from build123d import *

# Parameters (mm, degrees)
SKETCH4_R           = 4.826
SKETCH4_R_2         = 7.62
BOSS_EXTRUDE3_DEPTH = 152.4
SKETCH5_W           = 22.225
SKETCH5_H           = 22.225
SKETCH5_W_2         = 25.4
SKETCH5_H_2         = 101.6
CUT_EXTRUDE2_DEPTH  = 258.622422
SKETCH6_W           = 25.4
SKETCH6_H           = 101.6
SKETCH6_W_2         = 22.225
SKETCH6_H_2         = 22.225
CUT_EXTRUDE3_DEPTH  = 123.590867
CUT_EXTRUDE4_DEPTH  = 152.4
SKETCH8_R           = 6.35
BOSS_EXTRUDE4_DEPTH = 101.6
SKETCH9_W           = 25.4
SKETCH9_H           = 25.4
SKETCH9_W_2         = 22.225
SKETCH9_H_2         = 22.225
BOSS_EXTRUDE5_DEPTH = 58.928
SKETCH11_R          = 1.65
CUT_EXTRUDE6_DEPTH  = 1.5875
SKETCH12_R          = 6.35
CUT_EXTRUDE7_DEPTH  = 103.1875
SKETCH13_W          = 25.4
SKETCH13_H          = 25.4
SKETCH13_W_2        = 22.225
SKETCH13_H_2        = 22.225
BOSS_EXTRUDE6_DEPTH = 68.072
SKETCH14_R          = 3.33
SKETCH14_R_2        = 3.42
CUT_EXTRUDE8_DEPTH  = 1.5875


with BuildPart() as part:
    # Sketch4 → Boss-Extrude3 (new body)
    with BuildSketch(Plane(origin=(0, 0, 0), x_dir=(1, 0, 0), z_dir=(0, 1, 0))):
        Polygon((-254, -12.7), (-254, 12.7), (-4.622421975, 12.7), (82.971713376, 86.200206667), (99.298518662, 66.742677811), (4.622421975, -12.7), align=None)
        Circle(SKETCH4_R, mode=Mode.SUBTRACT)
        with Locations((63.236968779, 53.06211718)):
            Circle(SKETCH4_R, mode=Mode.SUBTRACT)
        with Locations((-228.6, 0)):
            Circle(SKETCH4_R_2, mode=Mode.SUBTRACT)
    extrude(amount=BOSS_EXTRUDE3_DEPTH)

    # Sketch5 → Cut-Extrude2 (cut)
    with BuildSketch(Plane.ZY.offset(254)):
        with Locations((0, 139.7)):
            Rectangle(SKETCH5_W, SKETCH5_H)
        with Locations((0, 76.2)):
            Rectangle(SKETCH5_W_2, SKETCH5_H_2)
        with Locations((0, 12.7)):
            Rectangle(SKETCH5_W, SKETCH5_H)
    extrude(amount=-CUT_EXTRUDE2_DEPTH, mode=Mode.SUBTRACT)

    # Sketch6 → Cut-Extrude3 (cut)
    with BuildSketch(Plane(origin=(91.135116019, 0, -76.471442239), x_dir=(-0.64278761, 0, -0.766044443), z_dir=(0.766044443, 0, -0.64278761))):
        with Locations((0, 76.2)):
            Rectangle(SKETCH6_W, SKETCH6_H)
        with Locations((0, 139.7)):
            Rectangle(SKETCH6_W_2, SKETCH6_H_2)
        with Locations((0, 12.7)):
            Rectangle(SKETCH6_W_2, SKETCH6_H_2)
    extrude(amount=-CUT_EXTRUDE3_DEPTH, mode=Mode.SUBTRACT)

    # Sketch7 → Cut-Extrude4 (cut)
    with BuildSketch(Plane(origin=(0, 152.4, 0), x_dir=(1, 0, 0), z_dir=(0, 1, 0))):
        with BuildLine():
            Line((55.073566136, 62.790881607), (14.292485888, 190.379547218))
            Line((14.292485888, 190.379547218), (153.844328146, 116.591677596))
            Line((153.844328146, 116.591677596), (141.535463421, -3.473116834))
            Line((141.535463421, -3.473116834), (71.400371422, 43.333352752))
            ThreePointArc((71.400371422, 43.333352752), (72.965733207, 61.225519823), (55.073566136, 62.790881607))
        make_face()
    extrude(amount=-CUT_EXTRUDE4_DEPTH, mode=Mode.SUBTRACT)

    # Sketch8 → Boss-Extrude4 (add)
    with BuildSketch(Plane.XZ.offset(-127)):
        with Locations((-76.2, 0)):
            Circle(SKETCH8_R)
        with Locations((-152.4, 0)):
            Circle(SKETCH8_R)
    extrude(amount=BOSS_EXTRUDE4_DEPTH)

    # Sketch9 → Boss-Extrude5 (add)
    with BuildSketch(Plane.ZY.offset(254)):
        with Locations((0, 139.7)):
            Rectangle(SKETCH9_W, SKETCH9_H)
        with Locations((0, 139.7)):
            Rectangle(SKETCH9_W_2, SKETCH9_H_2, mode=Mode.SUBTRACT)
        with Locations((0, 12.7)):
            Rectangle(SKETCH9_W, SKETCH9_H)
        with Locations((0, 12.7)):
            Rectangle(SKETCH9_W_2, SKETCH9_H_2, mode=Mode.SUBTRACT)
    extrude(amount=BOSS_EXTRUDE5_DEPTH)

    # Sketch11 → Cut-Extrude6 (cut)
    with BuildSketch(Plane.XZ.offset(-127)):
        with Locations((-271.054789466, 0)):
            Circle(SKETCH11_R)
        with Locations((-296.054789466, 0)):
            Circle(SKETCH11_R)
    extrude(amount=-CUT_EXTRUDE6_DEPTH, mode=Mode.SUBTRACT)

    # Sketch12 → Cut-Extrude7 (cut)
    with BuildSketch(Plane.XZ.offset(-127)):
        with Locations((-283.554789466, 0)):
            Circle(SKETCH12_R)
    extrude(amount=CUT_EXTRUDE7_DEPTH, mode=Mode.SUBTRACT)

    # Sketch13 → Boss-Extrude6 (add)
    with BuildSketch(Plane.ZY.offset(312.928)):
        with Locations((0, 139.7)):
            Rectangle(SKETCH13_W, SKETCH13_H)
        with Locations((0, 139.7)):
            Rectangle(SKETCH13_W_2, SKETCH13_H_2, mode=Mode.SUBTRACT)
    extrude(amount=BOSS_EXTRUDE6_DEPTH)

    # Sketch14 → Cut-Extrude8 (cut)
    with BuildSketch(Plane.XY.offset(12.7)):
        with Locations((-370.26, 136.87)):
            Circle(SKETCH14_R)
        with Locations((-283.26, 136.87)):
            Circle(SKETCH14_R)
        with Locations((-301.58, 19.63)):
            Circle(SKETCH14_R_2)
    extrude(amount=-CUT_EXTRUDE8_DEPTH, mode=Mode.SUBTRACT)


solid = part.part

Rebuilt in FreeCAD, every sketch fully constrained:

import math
import FreeCAD as App
import Part
import Sketcher
Q = App.Units.Quantity

doc = App.newDocument("Part")
body = doc.addObject("PartDesign::Body", "Body")
body.AllowCompound = True

# Sketch on XZ plane
sketch1 = body.newObject("Sketcher::SketchObject", "Sketch")
sketch1.AttachmentSupport = (doc.getObject("XZ_Plane"), [""])
sketch1.MapMode = "FlatFace"
sketch1.addGeometry([
    Part.LineSegment(App.Vector(-254, -12.7, 0), App.Vector(-254, 12.7, 0)),  # 0
    Part.LineSegment(App.Vector(-254, 12.7, 0), App.Vector(4.6, 12.7, 0)),  # 1
    Part.LineSegment(App.Vector(4.6, 12.7, 0), App.Vector(99.3, -66.7, 0)),  # 2
    Part.LineSegment(App.Vector(99.3, -66.7, 0), App.Vector(83, -86.2, 0)),  # 3
    Part.LineSegment(App.Vector(83, -86.2, 0), App.Vector(-4.6, -12.7, 0)),  # 4
    Part.LineSegment(App.Vector(-4.6, -12.7, 0), App.Vector(-254, -12.7, 0)),  # 5
    Part.Circle(App.Vector(0, 0, 0), App.Vector(0, 0, 1), 4.8),  # 6
    Part.Circle(App.Vector(-228.6, 0, 0), App.Vector(0, 0, 1), 7.6),  # 7
    Part.Circle(App.Vector(63.2, -53.1, 0), App.Vector(0, 0, 1), 4.8),  # 8
], False)
sketch1.addConstraint([
    Sketcher.Constraint("Coincident", 0, 2, 1, 1),
    Sketcher.Constraint("Coincident", 1, 2, 2, 1),
    Sketcher.Constraint("Coincident", 2, 2, 3, 1),
    Sketcher.Constraint("Coincident", 3, 2, 4, 1),
    Sketcher.Constraint("Coincident", 4, 2, 5, 1),
    Sketcher.Constraint("Coincident", 5, 2, 0, 1),
    Sketcher.Constraint("Vertical", 0),
    Sketcher.Constraint("Horizontal", 1),
    Sketcher.Constraint("Horizontal", 5),
    Sketcher.Constraint("Coincident", 6, 3, -1, 1),
    Sketcher.Constraint("Equal", 6, 8),
    Sketcher.Constraint("Symmetric", 1, 2, 4, 2, -1, 1),
    Sketcher.Constraint("PointOnObject", 7, 3, -1),
    Sketcher.Constraint("Perpendicular", 2, 3),
    Sketcher.Constraint("Perpendicular", 3, 4),
    Sketcher.Constraint("Diameter", 7, Q("0.6 in")),
    Sketcher.Constraint("Diameter", 6, Q("0.38 in")),
    Sketcher.Constraint("DistanceY", 0, 1, 0, 2, Q("1 in")),
    Sketcher.Constraint("Distance", 3, Q("1 in")),
    Sketcher.Constraint("DistanceX", 7, 3, -1, 1, Q("9 in")),
    Sketcher.Constraint("DistanceX", 0, 2, -1, 1, Q("10 in")),
    Sketcher.Constraint("Angle", 2, Q("-40 deg")),
    Sketcher.Constraint("DistanceX", -1, 1, 8, 3, Q("63.236969 mm")),
    Sketcher.Constraint("DistanceX", -1, 1, 2, 2, Q("99.298519 mm")),
    Sketcher.Constraint("DistanceY", 2, 2, 8, 3, Q("13.680561 mm")),
])
pad1 = body.newObject("PartDesign::Pad", "Pad")
pad1.Profile = sketch1
pad1.Length = Q("6 in")
pad1.Reversed = True

# Sketch on YZ plane
sketch2 = body.newObject("Sketcher::SketchObject", "Sketch001")
sketch2.AttachmentSupport = (doc.getObject("YZ_Plane"), [""])
sketch2.MapMode = "FlatFace"
sketch2.AttachmentOffset = App.Placement(App.Vector(0, 0, -10 * 25.4), App.Rotation())
sketch2.addGeometry([
    Part.LineSegment(App.Vector(151, -11, 0), App.Vector(129, -11, 0)),  # 0
    Part.LineSegment(App.Vector(129, -11, 0), App.Vector(129, 11, 0)),  # 1
    Part.LineSegment(App.Vector(129, 11, 0), App.Vector(151, 11, 0)),  # 2
    Part.LineSegment(App.Vector(151, 11, 0), App.Vector(151, -11, 0)),  # 3
    Part.LineSegment(App.Vector(127, -13, 0), App.Vector(25, -13, 0)),  # 4
    Part.LineSegment(App.Vector(25, -13, 0), App.Vector(25, 13, 0)),  # 5
    Part.LineSegment(App.Vector(25, 13, 0), App.Vector(127, 13, 0)),  # 6
    Part.LineSegment(App.Vector(127, 13, 0), App.Vector(127, -13, 0)),  # 7
    Part.LineSegment(App.Vector(24, -11, 0), App.Vector(2, -11, 0)),  # 8
    Part.LineSegment(App.Vector(2, -11, 0), App.Vector(2, 11, 0)),  # 9
    Part.LineSegment(App.Vector(2, 11, 0), App.Vector(24, 11, 0)),  # 10
    Part.LineSegment(App.Vector(24, 11, 0), App.Vector(24, -11, 0)),  # 11
], False)
sketch2.addConstraint([
    Sketcher.Constraint("Coincident", 0, 2, 1, 1),
    Sketcher.Constraint("Coincident", 1, 2, 2, 1),
    Sketcher.Constraint("Coincident", 2, 2, 3, 1),
    Sketcher.Constraint("Coincident", 3, 2, 0, 1),
    Sketcher.Constraint("Coincident", 4, 2, 5, 1),
    Sketcher.Constraint("Coincident", 5, 2, 6, 1),
    Sketcher.Constraint("Coincident", 6, 2, 7, 1),
    Sketcher.Constraint("Coincident", 7, 2, 4, 1),
    Sketcher.Constraint("Coincident", 8, 2, 9, 1),
    Sketcher.Constraint("Coincident", 9, 2, 10, 1),
    Sketcher.Constraint("Coincident", 10, 2, 11, 1),
    Sketcher.Constraint("Coincident", 11, 2, 8, 1),
    Sketcher.Constraint("Horizontal", 0),
    Sketcher.Constraint("Vertical", 1),
    Sketcher.Constraint("Horizontal", 2),
    Sketcher.Constraint("Vertical", 3),
    Sketcher.Constraint("Horizontal", 4),
    Sketcher.Constraint("Vertical", 5),
    Sketcher.Constraint("Horizontal", 6),
    Sketcher.Constraint("Vertical", 7),
    Sketcher.Constraint("Horizontal", 8),
    Sketcher.Constraint("Vertical", 9),
    Sketcher.Constraint("Horizontal", 10),
    Sketcher.Constraint("Vertical", 11),
    Sketcher.Constraint("Horizontal", 3, 2, 8, 2),
    Sketcher.Constraint("Horizontal", 2, 2, 9, 2),
    Sketcher.Constraint("Equal", 2, 8),
    Sketcher.Constraint("Equal", 10, 1),
    Sketcher.Constraint("DistanceX", 4, 2, 4, 1, Q("4 in")),
    Sketcher.Constraint("DistanceY", 5, 1, 5, 2, Q("1 in")),
    Sketcher.Constraint("DistanceX", -1, 1, 4, 2, Q("1 in")),
    Sketcher.Constraint("DistanceX", 8, 2, 0, 2, Q("5 in")),
    Sketcher.Constraint("DistanceY", 4, 2, -1, 1, Q("0.5 in")),
    Sketcher.Constraint("DistanceX", 0, 2, 0, 1, Q("0.875 in")),
    Sketcher.Constraint("DistanceX", -1, 1, 0, 2, Q("5.0625 in")),
    Sketcher.Constraint("DistanceY", 0, 2, -1, 1, Q("0.4375 in")),
])
pocket1 = body.newObject("PartDesign::Pocket", "Pocket")
pocket1.Profile = sketch2
pocket1.Length = 258.622422
pocket1.Reversed = True

# Sketch on an angled plane
sketch3 = body.newObject("Sketcher::SketchObject", "Sketch002")
sketch3.Placement = App.Placement(App.Vector(91.135116, 0, -76.471442), App.Rotation(App.Vector(-0.64278761, 0, -0.766044443), App.Vector(0, 1, 0), App.Vector(0.766044443, 0, -0.64278761), "ZXY"))
sketch3.addGeometry([
    Part.LineSegment(App.Vector(-13, 127, 0), App.Vector(-13, 25, 0)),  # 0
    Part.LineSegment(App.Vector(-13, 25, 0), App.Vector(13, 25, 0)),  # 1
    Part.LineSegment(App.Vector(13, 25, 0), App.Vector(13, 127, 0)),  # 2
    Part.LineSegment(App.Vector(13, 127, 0), App.Vector(-13, 127, 0)),  # 3
    Part.LineSegment(App.Vector(-11, 151, 0), App.Vector(-11, 129, 0)),  # 4
    Part.LineSegment(App.Vector(-11, 129, 0), App.Vector(11, 129, 0)),  # 5
    Part.LineSegment(App.Vector(11, 129, 0), App.Vector(11, 151, 0)),  # 6
    Part.LineSegment(App.Vector(11, 151, 0), App.Vector(-11, 151, 0)),  # 7
    Part.LineSegment(App.Vector(-11, 24, 0), App.Vector(-11, 2, 0)),  # 8
    Part.LineSegment(App.Vector(-11, 2, 0), App.Vector(11, 2, 0)),  # 9
    Part.LineSegment(App.Vector(11, 2, 0), App.Vector(11, 24, 0)),  # 10
    Part.LineSegment(App.Vector(11, 24, 0), App.Vector(-11, 24, 0)),  # 11
], False)
sketch3.addConstraint([
    Sketcher.Constraint("Coincident", 0, 2, 1, 1),
    Sketcher.Constraint("Coincident", 1, 2, 2, 1),
    Sketcher.Constraint("Coincident", 2, 2, 3, 1),
    Sketcher.Constraint("Coincident", 3, 2, 0, 1),
    Sketcher.Constraint("Coincident", 4, 2, 5, 1),
    Sketcher.Constraint("Coincident", 5, 2, 6, 1),
    Sketcher.Constraint("Coincident", 6, 2, 7, 1),
    Sketcher.Constraint("Coincident", 7, 2, 4, 1),
    Sketcher.Constraint("Coincident", 8, 2, 9, 1),
    Sketcher.Constraint("Coincident", 9, 2, 10, 1),
    Sketcher.Constraint("Coincident", 10, 2, 11, 1),
    Sketcher.Constraint("Coincident", 11, 2, 8, 1),
    Sketcher.Constraint("Vertical", 0),
    Sketcher.Constraint("Horizontal", 1),
    Sketcher.Constraint("Vertical", 2),
    Sketcher.Constraint("Horizontal", 3),
    Sketcher.Constraint("Vertical", 4),
    Sketcher.Constraint("Horizontal", 5),
    Sketcher.Constraint("Vertical", 6),
    Sketcher.Constraint("Horizontal", 7),
    Sketcher.Constraint("Vertical", 8),
    Sketcher.Constraint("Horizontal", 9),
    Sketcher.Constraint("Vertical", 10),
    Sketcher.Constraint("Horizontal", 11),
    Sketcher.Constraint("Vertical", 7, 2, 8, 2),
    Sketcher.Constraint("Vertical", 6, 2, 9, 2),
    Sketcher.Constraint("Equal", 11, 4),
    Sketcher.Constraint("Equal", 6, 8),
    Sketcher.Constraint("DistanceX", 1, 1, 1, 2, Q("1 in")),
    Sketcher.Constraint("DistanceY", 0, 2, 0, 1, Q("4 in")),
    Sketcher.Constraint("DistanceY", -1, 1, 0, 2, Q("1 in")),
    Sketcher.Constraint("DistanceY", 8, 2, 4, 2, Q("5 in")),
    Sketcher.Constraint("DistanceX", 0, 2, -1, 1, Q("0.5 in")),
    Sketcher.Constraint("DistanceX", 5, 1, 5, 2, Q("0.875 in")),
    Sketcher.Constraint("DistanceX", 4, 2, -1, 1, Q("0.4375 in")),
    Sketcher.Constraint("DistanceY", -1, 1, 4, 2, Q("5.0625 in")),
])
pocket2 = body.newObject("PartDesign::Pocket", "Pocket001")
pocket2.Profile = sketch3
pocket2.Length = 123.590867

# Sketch on XZ plane
sketch4 = body.newObject("Sketcher::SketchObject", "Sketch003")
sketch4.AttachmentSupport = (doc.getObject("XZ_Plane"), [""])
sketch4.MapMode = "FlatFace"
sketch4.AttachmentOffset = App.Placement(App.Vector(0, 0, -6 * 25.4), App.Rotation())
sketch4.addGeometry([
    Part.LineSegment(App.Vector(14, -190, 0), App.Vector(55, -63, 0)),  # 0
    Part.ArcOfCircle(Part.Circle(App.Vector(63, -53, 0), App.Vector(0, 0, 1), 13), math.radians(-130), math.radians(50)),  # 1
    Part.LineSegment(App.Vector(71, -43, 0), App.Vector(142, 3, 0)),  # 2
    Part.LineSegment(App.Vector(142, 3, 0), App.Vector(154, -117, 0)),  # 3
    Part.LineSegment(App.Vector(154, -117, 0), App.Vector(14, -190, 0)),  # 4
], False)
sketch4.addConstraint([
    Sketcher.Constraint("Coincident", 0, 2, 1, 1),
    Sketcher.Constraint("Coincident", 1, 2, 2, 1),
    Sketcher.Constraint("Coincident", 2, 2, 3, 1),
    Sketcher.Constraint("Coincident", 3, 2, 4, 1),
    Sketcher.Constraint("Coincident", 4, 2, 0, 1),
    Sketcher.Constraint("Radius", 1, Q("0.5 in")),
    Sketcher.Constraint("DistanceY", 0, 2, 2, 2, Q("66.263998 mm")),
    Sketcher.Constraint("Distance", 2, Q("84.319492 mm")),
    Sketcher.Constraint("Distance", 3, Q("120.694089 mm")),
    Sketcher.Constraint("Distance", 4, Q("157.858691 mm")),
    Sketcher.Constraint("DistanceX", -1, 1, 1, 3, Q("63.236969 mm")),
    Sketcher.Constraint("DistanceY", 0, 2, -1, 1, Q("62.790882 mm")),
    Sketcher.Constraint("DistanceX", -1, 1, 1, 2, Q("71.400371 mm")),
    Sketcher.Constraint("DistanceX", -1, 1, 3, 2, Q("153.844328 mm")),
    Sketcher.Constraint("DistanceY", 0, 2, 1, 2, Q("19.457529 mm")),
    Sketcher.Constraint("DistanceX", 4, 2, 0, 2, Q("40.78108 mm")),
])
pocket3 = body.newObject("PartDesign::Pocket", "Pocket002")
pocket3.Profile = sketch4
pocket3.Length = Q("6 in")
pocket3.Reversed = True

# Sketch on XZ plane
sketch5 = body.newObject("Sketcher::SketchObject", "Sketch004")
sketch5.AttachmentSupport = (doc.getObject("XZ_Plane"), [""])
sketch5.MapMode = "FlatFace"
sketch5.AttachmentOffset = App.Placement(App.Vector(0, 0, -5 * 25.4), App.Rotation())
sketch5.addGeometry([
    Part.Circle(App.Vector(-76, 0, 0), App.Vector(0, 0, 1), 6),
    Part.Circle(App.Vector(-152, 0, 0), App.Vector(0, 0, 1), 6),
], False)
sketch5.addConstraint([
    Sketcher.Constraint("Equal", 0, 1),
    Sketcher.Constraint("PointOnObject", 0, 3, -1),
    Sketcher.Constraint("PointOnObject", 1, 3, -1),
    Sketcher.Constraint("Diameter", 0, Q("0.5 in")),
    Sketcher.Constraint("DistanceX", 0, 3, -1, 1, Q("3 in")),
    Sketcher.Constraint("DistanceX", 1, 3, -1, 1, Q("6 in")),
])
pad2 = body.newObject("PartDesign::Pad", "Pad001")
pad2.Profile = sketch5
pad2.Length = Q("4 in")

# Sketch on YZ plane
sketch6 = body.newObject("Sketcher::SketchObject", "Sketch005")
sketch6.AttachmentSupport = (doc.getObject("YZ_Plane"), [""])
sketch6.MapMode = "FlatFace"
sketch6.AttachmentOffset = App.Placement(App.Vector(0, 0, -10 * 25.4), App.Rotation())
sketch6.addGeometry([
    Part.LineSegment(App.Vector(152, -13, 0), App.Vector(127, -13, 0)),  # 0
    Part.LineSegment(App.Vector(127, -13, 0), App.Vector(127, 13, 0)),  # 1
    Part.LineSegment(App.Vector(127, 13, 0), App.Vector(152, 13, 0)),  # 2
    Part.LineSegment(App.Vector(152, 13, 0), App.Vector(152, -13, 0)),  # 3
    Part.LineSegment(App.Vector(129, 11, 0), App.Vector(129, -11, 0)),  # 4
    Part.LineSegment(App.Vector(129, -11, 0), App.Vector(151, -11, 0)),  # 5
    Part.LineSegment(App.Vector(151, -11, 0), App.Vector(151, 11, 0)),  # 6
    Part.LineSegment(App.Vector(151, 11, 0), App.Vector(129, 11, 0)),  # 7
    Part.LineSegment(App.Vector(25, -13, 0), App.Vector(0, -13, 0)),  # 8
    Part.LineSegment(App.Vector(0, -13, 0), App.Vector(0, 13, 0)),  # 9
    Part.LineSegment(App.Vector(0, 13, 0), App.Vector(25, 13, 0)),  # 10
    Part.LineSegment(App.Vector(25, 13, 0), App.Vector(25, -13, 0)),  # 11
    Part.LineSegment(App.Vector(2, 11, 0), App.Vector(2, -11, 0)),  # 12
    Part.LineSegment(App.Vector(2, -11, 0), App.Vector(24, -11, 0)),  # 13
    Part.LineSegment(App.Vector(24, -11, 0), App.Vector(24, 11, 0)),  # 14
    Part.LineSegment(App.Vector(24, 11, 0), App.Vector(2, 11, 0)),  # 15
], False)
sketch6.addConstraint([
    Sketcher.Constraint("Coincident", 0, 2, 1, 1),
    Sketcher.Constraint("Coincident", 1, 2, 2, 1),
    Sketcher.Constraint("Coincident", 2, 2, 3, 1),
    Sketcher.Constraint("Coincident", 3, 2, 0, 1),
    Sketcher.Constraint("Coincident", 4, 2, 5, 1),
    Sketcher.Constraint("Coincident", 5, 2, 6, 1),
    Sketcher.Constraint("Coincident", 6, 2, 7, 1),
    Sketcher.Constraint("Coincident", 7, 2, 4, 1),
    Sketcher.Constraint("Coincident", 8, 2, 9, 1),
    Sketcher.Constraint("Coincident", 9, 2, 10, 1),
    Sketcher.Constraint("Coincident", 10, 2, 11, 1),
    Sketcher.Constraint("Coincident", 11, 2, 8, 1),
    Sketcher.Constraint("Coincident", 12, 2, 13, 1),
    Sketcher.Constraint("Coincident", 13, 2, 14, 1),
    Sketcher.Constraint("Coincident", 14, 2, 15, 1),
    Sketcher.Constraint("Coincident", 15, 2, 12, 1),
    Sketcher.Constraint("Horizontal", 0),
    Sketcher.Constraint("Vertical", 1),
    Sketcher.Constraint("Horizontal", 2),
    Sketcher.Constraint("Vertical", 3),
    Sketcher.Constraint("Vertical", 4),
    Sketcher.Constraint("Horizontal", 5),
    Sketcher.Constraint("Vertical", 6),
    Sketcher.Constraint("Horizontal", 7),
    Sketcher.Constraint("Horizontal", 8),
    Sketcher.Constraint("Vertical", 9),
    Sketcher.Constraint("Horizontal", 10),
    Sketcher.Constraint("Vertical", 11),
    Sketcher.Constraint("Vertical", 12),
    Sketcher.Constraint("Horizontal", 13),
    Sketcher.Constraint("Vertical", 14),
    Sketcher.Constraint("Horizontal", 15),
    Sketcher.Constraint("Symmetric", 8, 2, 9, 2, -1, 1),
    Sketcher.Constraint("Horizontal", 3, 2, 8, 2),
    Sketcher.Constraint("Horizontal", 2, 2, 9, 2),
    Sketcher.Constraint("Horizontal", 5, 2, 12, 2),
    Sketcher.Constraint("Horizontal", 7, 2, 14, 2),
    Sketcher.Constraint("Equal", 2, 8),
    Sketcher.Constraint("Equal", 7, 13),
    Sketcher.Constraint("Equal", 10, 1),
    Sketcher.Constraint("Equal", 15, 4),
    Sketcher.Constraint("DistanceX", 0, 2, 0, 1, Q("1 in")),
    Sketcher.Constraint("DistanceX", -1, 1, 0, 2, Q("5 in")),
    Sketcher.Constraint("DistanceX", 5, 1, 5, 2, Q("0.875 in")),
    Sketcher.Constraint("DistanceX", -1, 1, 4, 2, Q("5.0625 in")),
    Sketcher.Constraint("DistanceY", 4, 2, -1, 1, Q("0.4375 in")),
    Sketcher.Constraint("DistanceX", -1, 1, 12, 2, Q("0.0625 in")),
])
pad3 = body.newObject("PartDesign::Pad", "Pad002")
pad3.Profile = sketch6
pad3.Length = Q("2.32 in")
pad3.Reversed = True

# Sketch on XZ plane
sketch7 = body.newObject("Sketcher::SketchObject", "Sketch006")
sketch7.AttachmentSupport = (doc.getObject("XZ_Plane"), [""])
sketch7.MapMode = "FlatFace"
sketch7.AttachmentOffset = App.Placement(App.Vector(0, 0, -5 * 25.4), App.Rotation())
sketch7.addGeometry([
    Part.Circle(App.Vector(-271.1, 0, 0), App.Vector(0, 0, 1), 1.6),
    Part.Circle(App.Vector(-296.1, 0, 0), App.Vector(0, 0, 1), 1.6),
], False)
sketch7.addConstraint([
    Sketcher.Constraint("Equal", 0, 1),
    Sketcher.Constraint("PointOnObject", 0, 3, -1),
    Sketcher.Constraint("PointOnObject", 1, 3, -1),
    Sketcher.Constraint("Diameter", 0, Q("3.3 mm")),
    Sketcher.Constraint("DistanceX", 1, 3, 0, 3, Q("25 mm")),
    Sketcher.Constraint("DistanceX", 0, 3, -1, 1, Q("271.054789 mm")),
])
pocket4 = body.newObject("PartDesign::Pocket", "Pocket003")
pocket4.Profile = sketch7
pocket4.Length = Q("0.0625 in")

# Sketch on XZ plane
sketch8 = body.newObject("Sketcher::SketchObject", "Sketch007")
sketch8.AttachmentSupport = (doc.getObject("XZ_Plane"), [""])
sketch8.MapMode = "FlatFace"
sketch8.AttachmentOffset = App.Placement(App.Vector(0, 0, -5 * 25.4), App.Rotation())
sketch8.addGeometry(Part.Circle(App.Vector(-284, 0, 0), App.Vector(0, 0, 1), 6), False)
sketch8.addConstraint([
    Sketcher.Constraint("PointOnObject", 0, 3, -1),
    Sketcher.Constraint("Diameter", 0, Q("0.5 in")),
    Sketcher.Constraint("DistanceX", 0, 3, -1, 1, Q("283.554789 mm")),
])
pocket5 = body.newObject("PartDesign::Pocket", "Pocket004")
pocket5.Profile = sketch8
pocket5.Length = Q("4.0625 in")
pocket5.Reversed = True

# Sketch on YZ plane
sketch9 = body.newObject("Sketcher::SketchObject", "Sketch008")
sketch9.AttachmentSupport = (doc.getObject("YZ_Plane"), [""])
sketch9.MapMode = "FlatFace"
sketch9.AttachmentOffset = App.Placement(App.Vector(0, 0, -12.32 * 25.4), App.Rotation())
sketch9.addGeometry([
    Part.LineSegment(App.Vector(152, -13, 0), App.Vector(127, -13, 0)),  # 0
    Part.LineSegment(App.Vector(127, -13, 0), App.Vector(127, 13, 0)),  # 1
    Part.LineSegment(App.Vector(127, 13, 0), App.Vector(152, 13, 0)),  # 2
    Part.LineSegment(App.Vector(152, 13, 0), App.Vector(152, -13, 0)),  # 3
    Part.LineSegment(App.Vector(129, 11, 0), App.Vector(129, -11, 0)),  # 4
    Part.LineSegment(App.Vector(129, -11, 0), App.Vector(151, -11, 0)),  # 5
    Part.LineSegment(App.Vector(151, -11, 0), App.Vector(151, 11, 0)),  # 6
    Part.LineSegment(App.Vector(151, 11, 0), App.Vector(129, 11, 0)),  # 7
], False)
sketch9.addConstraint([
    Sketcher.Constraint("Coincident", 0, 2, 1, 1),
    Sketcher.Constraint("Coincident", 1, 2, 2, 1),
    Sketcher.Constraint("Coincident", 2, 2, 3, 1),
    Sketcher.Constraint("Coincident", 3, 2, 0, 1),
    Sketcher.Constraint("Coincident", 4, 2, 5, 1),
    Sketcher.Constraint("Coincident", 5, 2, 6, 1),
    Sketcher.Constraint("Coincident", 6, 2, 7, 1),
    Sketcher.Constraint("Coincident", 7, 2, 4, 1),
    Sketcher.Constraint("Horizontal", 0),
    Sketcher.Constraint("Vertical", 1),
    Sketcher.Constraint("Horizontal", 2),
    Sketcher.Constraint("Vertical", 3),
    Sketcher.Constraint("Vertical", 4),
    Sketcher.Constraint("Horizontal", 5),
    Sketcher.Constraint("Vertical", 6),
    Sketcher.Constraint("Horizontal", 7),
    Sketcher.Constraint("Equal", 2, 1),
    Sketcher.Constraint("Equal", 7, 4),
    Sketcher.Constraint("DistanceX", 0, 2, 0, 1, Q("1 in")),
    Sketcher.Constraint("DistanceX", -1, 1, 0, 2, Q("5 in")),
    Sketcher.Constraint("DistanceY", 0, 2, -1, 1, Q("0.5 in")),
    Sketcher.Constraint("DistanceX", 5, 1, 5, 2, Q("0.875 in")),
    Sketcher.Constraint("DistanceX", -1, 1, 4, 2, Q("5.0625 in")),
    Sketcher.Constraint("DistanceY", 4, 2, -1, 1, Q("0.4375 in")),
])
pad4 = body.newObject("PartDesign::Pad", "Pad003")
pad4.Profile = sketch9
pad4.Length = Q("2.68 in")
pad4.Reversed = True

# Sketch on XY plane
sketch10 = body.newObject("Sketcher::SketchObject", "Sketch009")
sketch10.AttachmentSupport = (doc.getObject("XY_Plane"), [""])
sketch10.MapMode = "FlatFace"
sketch10.AttachmentOffset = App.Placement(App.Vector(0, 0, 0.5 * 25.4), App.Rotation())
sketch10.addGeometry([
    Part.Circle(App.Vector(-370.3, 136.9, 0), App.Vector(0, 0, 1), 3.3),
    Part.Circle(App.Vector(-283.3, 136.9, 0), App.Vector(0, 0, 1), 3.3),
    Part.Circle(App.Vector(-301.6, 19.6, 0), App.Vector(0, 0, 1), 3.4),
], False)
sketch10.addConstraint([
    Sketcher.Constraint("Equal", 0, 1),
    Sketcher.Constraint("Horizontal", 0, 3, 1, 3),
    Sketcher.Constraint("Diameter", 0, Q("6.66 mm")),
    Sketcher.Constraint("Diameter", 2, Q("6.84 mm")),
    Sketcher.Constraint("DistanceX", 0, 3, -1, 1, Q("370.26 mm")),
    Sketcher.Constraint("DistanceY", -1, 1, 0, 3, Q("136.87 mm")),
    Sketcher.Constraint("DistanceX", 1, 3, -1, 1, Q("283.26 mm")),
    Sketcher.Constraint("DistanceX", 2, 3, -1, 1, Q("301.58 mm")),
    Sketcher.Constraint("DistanceY", -1, 1, 2, 3, Q("19.63 mm")),
])
pocket6 = body.newObject("PartDesign::Pocket", "Pocket005")
pocket6.Profile = sketch10
pocket6.Length = Q("0.0625 in")

doc.recompute()
